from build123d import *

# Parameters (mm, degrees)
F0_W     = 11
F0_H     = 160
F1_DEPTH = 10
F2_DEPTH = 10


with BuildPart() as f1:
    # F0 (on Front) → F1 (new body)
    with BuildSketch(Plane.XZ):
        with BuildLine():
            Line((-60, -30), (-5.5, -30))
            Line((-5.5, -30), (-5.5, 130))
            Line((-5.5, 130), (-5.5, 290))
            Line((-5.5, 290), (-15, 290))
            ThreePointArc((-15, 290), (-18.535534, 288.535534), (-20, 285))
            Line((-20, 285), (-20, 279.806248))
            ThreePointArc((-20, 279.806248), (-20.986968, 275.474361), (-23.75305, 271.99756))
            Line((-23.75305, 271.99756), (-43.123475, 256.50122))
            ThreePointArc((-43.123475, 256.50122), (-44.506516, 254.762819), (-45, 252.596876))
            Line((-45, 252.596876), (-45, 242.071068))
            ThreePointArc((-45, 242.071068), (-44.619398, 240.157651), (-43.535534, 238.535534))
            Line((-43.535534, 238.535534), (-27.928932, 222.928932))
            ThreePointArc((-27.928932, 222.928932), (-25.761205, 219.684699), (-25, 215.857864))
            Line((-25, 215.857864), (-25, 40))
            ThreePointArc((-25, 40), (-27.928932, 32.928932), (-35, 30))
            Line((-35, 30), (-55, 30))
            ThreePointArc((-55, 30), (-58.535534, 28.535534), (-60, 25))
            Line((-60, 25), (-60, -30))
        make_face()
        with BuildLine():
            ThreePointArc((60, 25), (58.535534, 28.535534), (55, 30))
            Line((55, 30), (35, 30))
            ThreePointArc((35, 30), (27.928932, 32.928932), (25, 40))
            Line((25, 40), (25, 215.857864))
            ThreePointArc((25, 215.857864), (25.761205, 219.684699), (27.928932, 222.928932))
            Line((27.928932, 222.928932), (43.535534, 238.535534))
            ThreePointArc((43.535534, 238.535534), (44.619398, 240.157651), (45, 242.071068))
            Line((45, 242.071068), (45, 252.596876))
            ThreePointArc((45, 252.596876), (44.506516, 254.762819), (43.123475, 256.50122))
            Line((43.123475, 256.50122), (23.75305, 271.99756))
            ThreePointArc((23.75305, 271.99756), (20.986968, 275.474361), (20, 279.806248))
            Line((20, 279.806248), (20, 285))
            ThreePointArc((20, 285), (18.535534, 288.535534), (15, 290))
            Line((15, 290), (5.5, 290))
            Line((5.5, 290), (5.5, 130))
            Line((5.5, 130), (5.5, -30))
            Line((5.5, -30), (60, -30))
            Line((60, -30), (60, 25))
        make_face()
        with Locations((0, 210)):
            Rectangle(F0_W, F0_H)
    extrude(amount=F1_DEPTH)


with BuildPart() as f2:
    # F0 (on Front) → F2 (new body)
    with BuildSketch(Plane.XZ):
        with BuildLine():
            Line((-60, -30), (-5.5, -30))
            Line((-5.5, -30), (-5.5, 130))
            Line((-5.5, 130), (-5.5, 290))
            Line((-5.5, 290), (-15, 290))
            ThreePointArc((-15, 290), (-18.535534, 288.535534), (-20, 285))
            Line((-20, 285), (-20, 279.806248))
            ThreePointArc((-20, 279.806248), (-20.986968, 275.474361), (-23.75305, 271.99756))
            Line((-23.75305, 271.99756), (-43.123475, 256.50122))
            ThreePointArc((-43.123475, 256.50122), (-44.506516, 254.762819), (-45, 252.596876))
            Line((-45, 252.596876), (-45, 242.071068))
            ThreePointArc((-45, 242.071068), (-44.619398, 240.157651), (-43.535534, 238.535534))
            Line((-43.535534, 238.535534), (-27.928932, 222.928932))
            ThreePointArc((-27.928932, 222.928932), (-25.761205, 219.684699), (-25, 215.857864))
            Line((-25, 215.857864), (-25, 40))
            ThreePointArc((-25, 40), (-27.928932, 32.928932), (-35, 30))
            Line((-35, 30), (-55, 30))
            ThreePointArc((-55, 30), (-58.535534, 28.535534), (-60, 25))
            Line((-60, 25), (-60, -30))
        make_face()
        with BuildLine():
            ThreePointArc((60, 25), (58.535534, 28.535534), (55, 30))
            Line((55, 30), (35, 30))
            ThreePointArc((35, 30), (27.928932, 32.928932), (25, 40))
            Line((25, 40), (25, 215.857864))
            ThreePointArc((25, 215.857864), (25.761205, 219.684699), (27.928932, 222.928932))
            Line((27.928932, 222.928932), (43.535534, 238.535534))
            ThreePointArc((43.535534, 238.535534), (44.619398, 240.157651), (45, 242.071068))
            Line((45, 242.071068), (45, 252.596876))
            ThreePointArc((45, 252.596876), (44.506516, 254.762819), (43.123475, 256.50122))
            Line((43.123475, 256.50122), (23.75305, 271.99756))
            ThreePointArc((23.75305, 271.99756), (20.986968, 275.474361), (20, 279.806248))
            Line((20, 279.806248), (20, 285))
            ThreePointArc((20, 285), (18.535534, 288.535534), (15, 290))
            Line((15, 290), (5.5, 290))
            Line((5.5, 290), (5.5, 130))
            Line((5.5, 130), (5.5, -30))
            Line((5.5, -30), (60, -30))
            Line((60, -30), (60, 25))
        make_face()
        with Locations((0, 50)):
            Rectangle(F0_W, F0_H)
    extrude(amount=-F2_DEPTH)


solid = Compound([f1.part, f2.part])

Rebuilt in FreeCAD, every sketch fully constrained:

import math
import FreeCAD as App
import Part
import Sketcher
from FreeCAD import Vector

doc = App.newDocument("Part")
body = doc.addObject("PartDesign::Body", "Body")

# Sketch on XZ plane
sketch1 = doc.addObject("Sketcher::SketchObject", "Sketch")
body.addObject(sketch1)
sketch1.AttachmentSupport = (doc.XZ_Plane, [""])
sketch1.MapMode = "FlatFace"
sketch1.addGeometry([
    Part.LineSegment(Vector(-60, -30, 0), Vector(-5.5, -30, 0)),  # 0
    Part.LineSegment(Vector(-5.5, -30, 0), Vector(-5.5, 130, 0)),  # 1
    Part.LineSegment(Vector(-5.5, 130, 0), Vector(5.5, 130, 0)),  # 2
    Part.LineSegment(Vector(5.5, 130, 0), Vector(5.5, -30, 0)),  # 3
    Part.LineSegment(Vector(5.5, -30, 0), Vector(60, -30, 0)),  # 4
    Part.LineSegment(Vector(60, -30, 0), Vector(60, 25, 0)),  # 5
    Part.ArcOfCircle(Part.Circle(Vector(55, 25, 0), Vector(0, 0, 1), 5), math.radians(0), math.radians(90)),  # 6
    Part.LineSegment(Vector(55, 30, 0), Vector(35, 30, 0)),  # 7
    Part.ArcOfCircle(Part.Circle(Vector(35, 40, 0), Vector(0, 0, 1), 10), math.radians(180), math.radians(270)),  # 8
    Part.LineSegment(Vector(25, 40, 0), Vector(25, 215.9, 0)),  # 9
    Part.ArcOfCircle(Part.Circle(Vector(35, 215.9, 0), Vector(0, 0, 1), 10), math.radians(135), math.radians(180)),  # 10
    Part.LineSegment(Vector(27.9, 222.9, 0), Vector(43.5, 238.5, 0)),  # 11
    Part.ArcOfCircle(Part.Circle(Vector(40, 242.1, 0), Vector(0, 0, 1), 5), math.radians(-45), math.radians(0)),  # 12
    Part.LineSegment(Vector(45, 242.1, 0), Vector(45, 252.6, 0)),  # 13
    Part.ArcOfCircle(Part.Circle(Vector(40, 252.6, 0), Vector(0, 0, 1), 5), math.radians(0), math.radians(51)),  # 14
    Part.LineSegment(Vector(43.1, 256.5, 0), Vector(23.8, 272, 0)),  # 15
    Part.ArcOfCircle(Part.Circle(Vector(30, 279.8, 0), Vector(0, 0, 1), 10), math.radians(-180), math.radians(-129)),  # 16
    Part.LineSegment(Vector(20, 279.8, 0), Vector(20, 285, 0)),  # 17
    Part.ArcOfCircle(Part.Circle(Vector(15, 285, 0), Vector(0, 0, 1), 5), math.radians(0), math.radians(90)),  # 18
    Part.LineSegment(Vector(15, 290, 0), Vector(-15, 290, 0)),  # 19
    Part.ArcOfCircle(Part.Circle(Vector(-15, 285, 0), Vector(0, 0, 1), 5), math.radians(90), math.radians(180)),  # 20
    Part.LineSegment(Vector(-20, 285, 0), Vector(-20, 279.8, 0)),  # 21
    Part.ArcOfCircle(Part.Circle(Vector(-30, 279.8, 0), Vector(0, 0, 1), 10), math.radians(-51), math.radians(0)),  # 22
    Part.LineSegment(Vector(-23.8, 272, 0), Vector(-43.1, 256.5, 0)),  # 23
    Part.ArcOfCircle(Part.Circle(Vector(-40, 252.6, 0), Vector(0, 0, 1), 5), math.radians(129), math.radians(180)),  # 24
    Part.LineSegment(Vector(-45, 252.6, 0), Vector(-45, 242.1, 0)),  # 25
    Part.ArcOfCircle(Part.Circle(Vector(-40, 242.1, 0), Vector(0, 0, 1), 5), math.radians(180), math.radians(225)),  # 26
    Part.LineSegment(Vector(-43.5, 238.5, 0), Vector(-27.9, 222.9, 0)),  # 27
    Part.ArcOfCircle(Part.Circle(Vector(-35, 215.9, 0), Vector(0, 0, 1), 10), math.radians(0), math.radians(45)),  # 28
    Part.LineSegment(Vector(-25, 215.9, 0), Vector(-25, 40, 0)),  # 29
    Part.ArcOfCircle(Part.Circle(Vector(-35, 40, 0), Vector(0, 0, 1), 10), math.radians(-90), math.radians(0)),  # 30
    Part.LineSegment(Vector(-35, 30, 0), Vector(-55, 30, 0)),  # 31
    Part.ArcOfCircle(Part.Circle(Vector(-55, 25, 0), Vector(0, 0, 1), 5), math.radians(90), math.radians(180)),  # 32
    Part.LineSegment(Vector(-60, 25, 0), Vector(-60, -30, 0)),  # 33
], False)
sketch1.addConstraint([
    Sketcher.Constraint("Coincident", 0, 2, 1, 1),
    Sketcher.Constraint("Coincident", 1, 2, 2, 1),
    Sketcher.Constraint("Coincident", 2, 2, 3, 1),
    Sketcher.Constraint("Coincident", 3, 2, 4, 1),
    Sketcher.Constraint("Coincident", 4, 2, 5, 1),
    Sketcher.Constraint("Tangent", 5, 2, 6, 1),
    Sketcher.Constraint("Tangent", 6, 2, 7, 1),
    Sketcher.Constraint("Tangent", 7, 2, 8, 2),
    Sketcher.Constraint("Tangent", 8, 1, 9, 1),
    Sketcher.Constraint("Tangent", 9, 2, 10, 2),
    Sketcher.Constraint("Tangent", 10, 1, 11, 1),
    Sketcher.Constraint("Tangent", 11, 2, 12, 1),
    Sketcher.Constraint("Tangent", 12, 2, 13, 1),
    Sketcher.Constraint("Tangent", 13, 2, 14, 1),
    Sketcher.Constraint("Tangent", 14, 2, 15, 1),
    Sketcher.Constraint("Tangent", 15, 2, 16, 2),
    Sketcher.Constraint("Tangent", 16, 1, 17, 1),
    Sketcher.Constraint("Tangent", 17, 2, 18, 1),
    Sketcher.Constraint("Tangent", 18, 2, 19, 1),
    Sketcher.Constraint("Tangent", 19, 2, 20, 1),
    Sketcher.Constraint("Tangent", 20, 2, 21, 1),
    Sketcher.Constraint("Tangent", 21, 2, 22, 2),
    Sketcher.Constraint("Tangent", 22, 1, 23, 1),
    Sketcher.Constraint("Tangent", 23, 2, 24, 1),
    Sketcher.Constraint("Tangent", 24, 2, 25, 1),
    Sketcher.Constraint("Tangent", 25, 2, 26, 1),
    Sketcher.Constraint("Tangent", 26, 2, 27, 1),
    Sketcher.Constraint("Tangent", 27, 2, 28, 2),
    Sketcher.Constraint("Tangent", 28, 1, 29, 1),
    Sketcher.Constraint("Tangent", 29, 2, 30, 2),
    Sketcher.Constraint("Tangent", 30, 1, 31, 1),
    Sketcher.Constraint("Tangent", 31, 2, 32, 1),
    Sketcher.Constraint("Tangent", 32, 2, 33, 1),
    Sketcher.Constraint("Coincident", 33, 2, 0, 1),
    Sketcher.Constraint("Horizontal", 0),
    Sketcher.Constraint("Vertical", 1),
    Sketcher.Constraint("Horizontal", 2),
    Sketcher.Constraint("Vertical", 3),
    Sketcher.Constraint("Horizontal", 4),
    Sketcher.Constraint("Vertical", 5),
    Sketcher.Constraint("Horizontal", 7),
    Sketcher.Constraint("Vertical", 9),
    Sketcher.Constraint("Vertical", 13),
    Sketcher.Constraint("Vertical", 17),
    Sketcher.Constraint("Horizontal", 19),
    Sketcher.Constraint("Vertical", 21),
    Sketcher.Constraint("Vertical", 25),
    Sketcher.Constraint("Vertical", 29),
    Sketcher.Constraint("Horizontal", 31),
    Sketcher.Constraint("Vertical", 33),
    Sketcher.Constraint("Equal", 6, 12),
    Sketcher.Constraint("Equal", 10, 16),
    Sketcher.Constraint("Equal", 12, 18),
    Sketcher.Constraint("Equal", 18, 20),
    Sketcher.Constraint("Equal", 16, 22),
    Sketcher.Constraint("Equal", 14, 24),
    Sketcher.Constraint("Equal", 20, 26),
    Sketcher.Constraint("Equal", 22, 28),
    Sketcher.Constraint("Equal", 8, 30),
    Sketcher.Constraint("Equal", 26, 32),
    Sketcher.Constraint("Symmetric", 16, 3, 22, 3, -2),
    Sketcher.Constraint("Symmetric", 14, 3, 24, 3, -2),
    Sketcher.Constraint("Symmetric", 10, 3, 28, 3, -2),
    Sketcher.Constraint("Symmetric", 6, 3, 32, 3, -2),
    Sketcher.Constraint("Symmetric", 0, 2, 3, 2, -2),
    Sketcher.Constraint("Perpendicular", 11, 27),
    Sketcher.Constraint("Horizontal", 12, 3, 26, 3),
    Sketcher.Constraint("Radius", 6, 5.0),
    Sketcher.Constraint("Radius", 8, 9.999999),
    Sketcher.Constraint("DistanceX", 2, 1, 2, 2, 11.0),
    Sketcher.Constraint("DistanceX", 7, 2, 7, 1, 20.0),
    Sketcher.Constraint("DistanceX", 19, 2, 19, 1, 30.0),
    Sketcher.Constraint("DistanceY", 1, 1, 1, 2, 160.0),
    Sketcher.Constraint("DistanceY", 5, 1, 5, 2, 55.0),
    Sketcher.Constraint("DistanceX", 0, 1, 0, 2, 54.5),
    Sketcher.Constraint("DistanceY", -1, 1, 6, 3, 25.0),
    Sketcher.Constraint("DistanceY", -1, 1, 18, 3, 285.0),
    Sketcher.Constraint("DistanceX", -1, 1, 12, 2, 45.0),
    Sketcher.Constraint("DistanceX", 10, 3, 6, 3, 19.999998),
    Sketcher.Constraint("DistanceX", 22, 3, 14, 3, 69.999999),
    Sketcher.Constraint("DistanceY", 13, 1, 13, 2, 10.525808),
    Sketcher.Constraint("DistanceY", 9, 1, 9, 2, 175.857864),
    Sketcher.Constraint("DistanceY", 17, 1, 17, 2, 5.193752),
])
pad1 = doc.addObject("PartDesign::Pad", "Pad")
body.addObject(pad1)
pad1.Profile = sketch1
pad1.Length = 10
body2 = doc.addObject("PartDesign::Body", "Body001")

# Sketch on XZ plane
sketch2 = doc.addObject("Sketcher::SketchObject", "Sketch001")
body2.addObject(sketch2)
sketch2.AttachmentSupport = (doc.getObject("XZ_Plane001"), [""])
sketch2.MapMode = "FlatFace"
sketch2.addGeometry([
    Part.LineSegment(Vector(-60, -30, 0), Vector(60, -30, 0)),  # 0
    Part.LineSegment(Vector(60, -30, 0), Vector(60, 25, 0)),  # 1
    Part.ArcOfCircle(Part.Circle(Vector(55, 25, 0), Vector(0, 0, 1), 5), math.radians(0), math.radians(90)),  # 2
    Part.LineSegment(Vector(55, 30, 0), Vector(35, 30, 0)),  # 3
    Part.ArcOfCircle(Part.Circle(Vector(35, 40, 0), Vector(0, 0, 1), 10), math.radians(180), math.radians(270)),  # 4
    Part.LineSegment(Vector(25, 40, 0), Vector(25, 215.9, 0)),  # 5
    Part.ArcOfCircle(Part.Circle(Vector(35, 215.9, 0), Vector(0, 0, 1), 10), math.radians(135), math.radians(180)),  # 6
    Part.LineSegment(Vector(27.9, 222.9, 0), Vector(43.5, 238.5, 0)),  # 7
    Part.ArcOfCircle(Part.Circle(Vector(40, 242.1, 0), Vector(0, 0, 1), 5), math.radians(-45), math.radians(0)),  # 8
    Part.LineSegment(Vector(45, 242.1, 0), Vector(45, 252.6, 0)),  # 9
    Part.ArcOfCircle(Part.Circle(Vector(40, 252.6, 0), Vector(0, 0, 1), 5), math.radians(0), math.radians(51)),  # 10
    Part.LineSegment(Vector(43.1, 256.5, 0), Vector(23.8, 272, 0)),  # 11
    Part.ArcOfCircle(Part.Circle(Vector(30, 279.8, 0), Vector(0, 0, 1), 10), math.radians(-180), math.radians(-129)),  # 12
    Part.LineSegment(Vector(20, 279.8, 0), Vector(20, 285, 0)),  # 13
    Part.ArcOfCircle(Part.Circle(Vector(15, 285, 0), Vector(0, 0, 1), 5), math.radians(0), math.radians(90)),  # 14
    Part.LineSegment(Vector(15, 290, 0), Vector(5.5, 290, 0)),  # 15
    Part.LineSegment(Vector(5.5, 290, 0), Vector(5.5, 130, 0)),  # 16
    Part.LineSegment(Vector(5.5, 130, 0), Vector(-5.5, 130, 0)),  # 17
    Part.LineSegment(Vector(-5.5, 130, 0), Vector(-5.5, 290, 0)),  # 18
    Part.LineSegment(Vector(-5.5, 290, 0), Vector(-15, 290, 0)),  # 19
    Part.ArcOfCircle(Part.Circle(Vector(-15, 285, 0), Vector(0, 0, 1), 5), math.radians(90), math.radians(180)),  # 20
    Part.LineSegment(Vector(-20, 285, 0), Vector(-20, 279.8, 0)),  # 21
    Part.ArcOfCircle(Part.Circle(Vector(-30, 279.8, 0), Vector(0, 0, 1), 10), math.radians(-51), math.radians(0)),  # 22
    Part.LineSegment(Vector(-23.8, 272, 0), Vector(-43.1, 256.5, 0)),  # 23
    Part.ArcOfCircle(Part.Circle(Vector(-40, 252.6, 0), Vector(0, 0, 1), 5), math.radians(129), math.radians(180)),  # 24
    Part.LineSegment(Vector(-45, 252.6, 0), Vector(-45, 242.1, 0)),  # 25
    Part.ArcOfCircle(Part.Circle(Vector(-40, 242.1, 0), Vector(0, 0, 1), 5), math.radians(180), math.radians(225)),  # 26
    Part.LineSegment(Vector(-43.5, 238.5, 0), Vector(-27.9, 222.9, 0)),  # 27
    Part.ArcOfCircle(Part.Circle(Vector(-35, 215.9, 0), Vector(0, 0, 1), 10), math.radians(0), math.radians(45)),  # 28
    Part.LineSegment(Vector(-25, 215.9, 0), Vector(-25, 40, 0)),  # 29
    Part.ArcOfCircle(Part.Circle(Vector(-35, 40, 0), Vector(0, 0, 1), 10), math.radians(-90), math.radians(0)),  # 30
    Part.LineSegment(Vector(-35, 30, 0), Vector(-55, 30, 0)),  # 31
    Part.ArcOfCircle(Part.Circle(Vector(-55, 25, 0), Vector(0, 0, 1), 5), math.radians(90), math.radians(180)),  # 32
    Part.LineSegment(Vector(-60, 25, 0), Vector(-60, -30, 0)),  # 33
], False)
sketch2.addConstraint([
    Sketcher.Constraint("Coincident", 0, 2, 1, 1),
    Sketcher.Constraint("Tangent", 1, 2, 2, 1),
    Sketcher.Constraint("Tangent", 2, 2, 3, 1),
    Sketcher.Constraint("Tangent", 3, 2, 4, 2),
    Sketcher.Constraint("Tangent", 4, 1, 5, 1),
    Sketcher.Constraint("Tangent", 5, 2, 6, 2),
    Sketcher.Constraint("Tangent", 6, 1, 7, 1),
    Sketcher.Constraint("Tangent", 7, 2, 8, 1),
    Sketcher.Constraint("Tangent", 8, 2, 9, 1),
    Sketcher.Constraint("Tangent", 9, 2, 10, 1),
    Sketcher.Constraint("Tangent", 10, 2, 11, 1),
    Sketcher.Constraint("Tangent", 11, 2, 12, 2),
    Sketcher.Constraint("Tangent", 12, 1, 13, 1),
    Sketcher.Constraint("Tangent", 13, 2, 14, 1),
    Sketcher.Constraint("Tangent", 14, 2, 15, 1),
    Sketcher.Constraint("Coincident", 15, 2, 16, 1),
    Sketcher.Constraint("Coincident", 16, 2, 17, 1),
    Sketcher.Constraint("Coincident", 17, 2, 18, 1),
    Sketcher.Constraint("Coincident", 18, 2, 19, 1),
    Sketcher.Constraint("Tangent", 19, 2, 20, 1),
    Sketcher.Constraint("Tangent", 20, 2, 21, 1),
    Sketcher.Constraint("Tangent", 21, 2, 22, 2),
    Sketcher.Constraint("Tangent", 22, 1, 23, 1),
    Sketcher.Constraint("Tangent", 23, 2, 24, 1),
    Sketcher.Constraint("Tangent", 24, 2, 25, 1),
    Sketcher.Constraint("Tangent", 25, 2, 26, 1),
    Sketcher.Constraint("Tangent", 26, 2, 27, 1),
    Sketcher.Constraint("Tangent", 27, 2, 28, 2),
    Sketcher.Constraint("Tangent", 28, 1, 29, 1),
    Sketcher.Constraint("Tangent", 29, 2, 30, 2),
    Sketcher.Constraint("Tangent", 30, 1, 31, 1),
    Sketcher.Constraint("Tangent", 31, 2, 32, 1),
    Sketcher.Constraint("Tangent", 32, 2, 33, 1),
    Sketcher.Constraint("Coincident", 33, 2, 0, 1),
    Sketcher.Constraint("Horizontal", 0),
    Sketcher.Constraint("Vertical", 1),
    Sketcher.Constraint("Horizontal", 3),
    Sketcher.Constraint("Vertical", 5),
    Sketcher.Constraint("Vertical", 9),
    Sketcher.Constraint("Vertical", 13),
    Sketcher.Constraint("Horizontal", 15),
    Sketcher.Constraint("Vertical", 16),
    Sketcher.Constraint("Horizontal", 17),
    Sketcher.Constraint("Vertical", 18),
    Sketcher.Constraint("Horizontal", 19),
    Sketcher.Constraint("Vertical", 21),
    Sketcher.Constraint("Vertical", 25),
    Sketcher.Constraint("Vertical", 29),
    Sketcher.Constraint("Horizontal", 31),
    Sketcher.Constraint("Vertical", 33),
    Sketcher.Constraint("Equal", 2, 8),
    Sketcher.Constraint("Equal", 6, 12),
    Sketcher.Constraint("Equal", 8, 14),
    Sketcher.Constraint("Equal", 14, 20),
    Sketcher.Constraint("Equal", 12, 22),
    Sketcher.Constraint("Equal", 10, 24),
    Sketcher.Constraint("Equal", 20, 26),
    Sketcher.Constraint("Equal", 22, 28),
    Sketcher.Constraint("Equal", 4, 30),
    Sketcher.Constraint("Equal", 26, 32),
    Sketcher.Constraint("Symmetric", 14, 3, 20, 3, -2),
    Sketcher.Constraint("Symmetric", 10, 3, 24, 3, -2),
    Sketcher.Constraint("Symmetric", 6, 3, 28, 3, -2),
    Sketcher.Constraint("Symmetric", 2, 3, 32, 3, -2),
    Sketcher.Constraint("Perpendicular", 7, 27),
    Sketcher.Constraint("Horizontal", 12, 3, 22, 3),
    Sketcher.Constraint("Horizontal", 8, 3, 26, 3),
    Sketcher.Constraint("Equal", 15, 19),
    Sketcher.Constraint("Radius", 2, 5.0),
    Sketcher.Constraint("Radius", 4, 9.999999),
    Sketcher.Constraint("DistanceX", 0, 1, 0, 2, 120.0),
    Sketcher.Constraint("DistanceX", 3, 2, 3, 1, 20.0),
    Sketcher.Constraint("DistanceX", 17, 2, 17, 1, 11.0),
    Sketcher.Constraint("DistanceY", 1, 1, 1, 2, 55.0),
    Sketcher.Constraint("DistanceY", 16, 2, 16, 1, 160.0),
    Sketcher.Constraint("DistanceX", 15, 2, 15, 1, 9.5),
    Sketcher.Constraint("DistanceY", -1, 1, 2, 3, 25.0),
    Sketcher.Constraint("DistanceY", -1, 1, 14, 3, 285.0),
    Sketcher.Constraint("DistanceX", -1, 1, 8, 2, 45.0),
    Sketcher.Constraint("DistanceX", 6, 3, 2, 3, 19.999998),
    Sketcher.Constraint("DistanceX", 22, 3, 10, 3, 69.999999),
    Sketcher.Constraint("DistanceY", 9, 1, 9, 2, 10.525808),
    Sketcher.Constraint("DistanceY", 5, 1, 5, 2, 175.857864),
    Sketcher.Constraint("DistanceY", 13, 1, 13, 2, 5.193752),
])
pad2 = doc.addObject("PartDesign::Pad", "Pad001")
body2.addObject(pad2)
pad2.Profile = sketch2
pad2.Length = 10
pad2.Reversed = True

doc.recompute()
